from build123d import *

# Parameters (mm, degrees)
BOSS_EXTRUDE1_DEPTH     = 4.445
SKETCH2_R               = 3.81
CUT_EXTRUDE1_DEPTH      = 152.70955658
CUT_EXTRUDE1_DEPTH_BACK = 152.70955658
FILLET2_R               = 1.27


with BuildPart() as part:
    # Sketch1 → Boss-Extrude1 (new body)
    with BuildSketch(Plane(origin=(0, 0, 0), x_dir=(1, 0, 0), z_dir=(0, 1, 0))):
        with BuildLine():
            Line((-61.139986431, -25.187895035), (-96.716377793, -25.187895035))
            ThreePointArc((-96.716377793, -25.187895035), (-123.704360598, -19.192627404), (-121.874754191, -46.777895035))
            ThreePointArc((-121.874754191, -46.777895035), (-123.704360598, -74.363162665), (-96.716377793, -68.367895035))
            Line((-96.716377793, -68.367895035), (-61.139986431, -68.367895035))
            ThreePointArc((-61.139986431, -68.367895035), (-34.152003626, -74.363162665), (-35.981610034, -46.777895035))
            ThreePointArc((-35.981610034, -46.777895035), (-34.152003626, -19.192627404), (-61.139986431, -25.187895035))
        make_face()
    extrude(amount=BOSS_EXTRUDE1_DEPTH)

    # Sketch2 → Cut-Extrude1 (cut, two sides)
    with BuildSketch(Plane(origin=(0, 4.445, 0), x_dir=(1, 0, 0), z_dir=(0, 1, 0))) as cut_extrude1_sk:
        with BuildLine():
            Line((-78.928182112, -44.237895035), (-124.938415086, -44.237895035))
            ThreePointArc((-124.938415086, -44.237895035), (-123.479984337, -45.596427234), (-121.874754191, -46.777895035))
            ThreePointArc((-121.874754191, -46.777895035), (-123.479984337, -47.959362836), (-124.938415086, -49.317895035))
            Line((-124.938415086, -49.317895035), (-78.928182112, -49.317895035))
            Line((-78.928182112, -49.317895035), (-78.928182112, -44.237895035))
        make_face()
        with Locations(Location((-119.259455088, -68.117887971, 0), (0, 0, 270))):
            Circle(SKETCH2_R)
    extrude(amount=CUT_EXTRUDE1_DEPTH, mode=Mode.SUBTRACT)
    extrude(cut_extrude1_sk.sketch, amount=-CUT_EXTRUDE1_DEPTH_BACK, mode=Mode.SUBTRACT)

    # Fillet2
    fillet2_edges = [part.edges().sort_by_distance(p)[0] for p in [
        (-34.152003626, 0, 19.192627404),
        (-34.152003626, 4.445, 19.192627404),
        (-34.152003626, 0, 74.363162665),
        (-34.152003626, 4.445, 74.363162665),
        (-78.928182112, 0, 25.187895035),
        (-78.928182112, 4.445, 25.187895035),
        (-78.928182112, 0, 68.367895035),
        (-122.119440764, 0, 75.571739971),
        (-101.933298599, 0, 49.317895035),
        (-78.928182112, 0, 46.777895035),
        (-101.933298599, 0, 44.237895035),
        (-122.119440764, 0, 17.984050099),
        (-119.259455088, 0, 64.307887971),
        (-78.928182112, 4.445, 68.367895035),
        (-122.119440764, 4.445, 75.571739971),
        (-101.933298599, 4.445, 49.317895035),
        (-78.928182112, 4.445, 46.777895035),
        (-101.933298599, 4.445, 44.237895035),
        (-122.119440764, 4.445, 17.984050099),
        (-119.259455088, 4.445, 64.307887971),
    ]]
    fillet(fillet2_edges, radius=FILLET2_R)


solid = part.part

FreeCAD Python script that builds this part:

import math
import FreeCAD as App
import Part
import Sketcher
from FreeCAD import Vector
Q = App.Units.Quantity


def edges_at(feature, points):
    """Names of the edges that pass closest to the given points."""
    edges = feature.Shape.Edges
    near = lambda p: min(range(len(edges)), key=lambda i: edges[i].distToShape(Part.Vertex(*p))[0])
    return sorted({f"Edge{near(p) + 1}" for p in points})

doc = App.newDocument("Part")
params = doc.addObject("Spreadsheet::Sheet", "Params")
for row, (alias, value) in enumerate([
    ("sketch1_radius", "0.68 in"),
    ("pad1_length", "0.175 in"),
    ("sketch2_diameter", "0.3 in"),
    ("sketch2_radius", "0.68 in"),
    ("sketch2_height", "0.2 in"),
    ("fillet_radius", "0.05 in"),
], start=1):
    params.set(f"A{row}", alias)
    params.set(f"B{row}", "=" + value)
    params.setAlias(f"B{row}", alias)

body = doc.addObject("PartDesign::Body", "Body")

# Sketch on XZ plane
sketch1 = doc.addObject("Sketcher::SketchObject", "Sketch")
body.addObject(sketch1)
sketch1.AttachmentSupport = (doc.XZ_Plane, [""])
sketch1.MapMode = "FlatFace"
sketch1.addGeometry(Part.LineSegment(Vector(-61, 25, 0), Vector(-97, 25, 0)), False)
sketch1.addGeometry(Part.ArcOfCircle(Part.Circle(Vector(-112, 32, 0), Vector(0, 0, 1), 17), math.radians(123), math.radians(336)), False)
sketch1.addGeometry(Part.ArcOfCircle(Part.Circle(Vector(-112, 61, 0), Vector(0, 0, 1), 17), math.radians(24), math.radians(237)), False)
sketch1.addGeometry(Part.LineSegment(Vector(-97, 68, 0), Vector(-61, 68, 0)), False)
sketch1.addGeometry(Part.ArcOfCircle(Part.Circle(Vector(-45, 61, 0), Vector(0, 0, 1), 17), math.radians(-57), math.radians(156)), False)
sketch1.addGeometry(Part.ArcOfCircle(Part.Circle(Vector(-45, 32, 0), Vector(0, 0, 1), 17), math.radians(-156), math.radians(57)), False)
sketch1.addConstraint(Sketcher.Constraint("Coincident", 0, 2, 1, 2))
sketch1.addConstraint(Sketcher.Constraint("Coincident", 1, 1, 2, 2))
sketch1.addConstraint(Sketcher.Constraint("Coincident", 2, 1, 3, 1))
sketch1.addConstraint(Sketcher.Constraint("Coincident", 3, 2, 4, 2))
sketch1.addConstraint(Sketcher.Constraint("Coincident", 4, 1, 5, 2))
sketch1.addConstraint(Sketcher.Constraint("Coincident", 5, 1, 0, 1))
sketch1.addConstraint(Sketcher.Constraint("Horizontal", 0))
sketch1.addConstraint(Sketcher.Constraint("Horizontal", 3))
sketch1.addConstraint(Sketcher.Constraint("Equal", 1, 2))
sketch1.addConstraint(Sketcher.Constraint("Equal", 2, 4))
sketch1.addConstraint(Sketcher.Constraint("Equal", 4, 5))
sketch1.addConstraint(Sketcher.Constraint("Horizontal", 2, 3, 4, 3))
sketch1.addConstraint(Sketcher.Constraint("Horizontal", 1, 3, 5, 3))
sketch1.addConstraint(Sketcher.Constraint("Horizontal", 1, 1, 4, 1))
sketch1.addConstraint(Sketcher.Constraint("Vertical", 1, 3, 2, 3))
sketch1.addConstraint(Sketcher.Constraint("Vertical", 0, 2, 2, 1))
sketch1.addConstraint(Sketcher.Constraint("Radius", 1, Q("0.68 in")))
sketch1.addConstraint(Sketcher.Constraint("DistanceY", 0, 2, 2, 1, Q("1.7 in")))
sketch1.addConstraint(Sketcher.Constraint("DistanceY", 1, 3, 2, 3, Q("1.14 in")))
sketch1.addConstraint(Sketcher.Constraint("DistanceX", 2, 3, 4, 3, Q("2.64 in")))
sketch1.addConstraint(Sketcher.Constraint("DistanceX", 4, 1, -1, 1, Q("35.98161 mm")))
sketch1.addConstraint(Sketcher.Constraint("DistanceY", -1, 1, 1, 3, Q("32.299895 mm")))
sketch1.setExpression("Constraints[16]", "Params.sketch1_radius")
pad1 = doc.addObject("PartDesign::Pad", "Pad")
body.addObject(pad1)
pad1.Profile = sketch1
pad1.setExpression("Length", "Params.pad1_length")
pad1.Reversed = True

# Sketch on XZ plane
sketch2 = doc.addObject("Sketcher::SketchObject", "Sketch001")
body.addObject(sketch2)
sketch2.AttachmentSupport = (doc.XZ_Plane, [""])
sketch2.MapMode = "FlatFace"
sketch2.AttachmentOffset = App.Placement(Vector(0, 0, -0.175 * 25.4), App.Rotation())
sketch2.addGeometry(Part.LineSegment(Vector(-78.9, 44.2, 0), Vector(-124.9, 44.2, 0)), False)
sketch2.addGeometry(Part.ArcOfCircle(Part.Circle(Vector(-112.5, 32.3, 0), Vector(0, 0, 1), 17.3), math.radians(123.05), math.radians(136.28)), False)
sketch2.addGeometry(Part.ArcOfCircle(Part.Circle(Vector(-112.5, 61.3, 0), Vector(0, 0, 1), 17.3), math.radians(-136.28), math.radians(-123.05)), False)
sketch2.addGeometry(Part.LineSegment(Vector(-124.9, 49.3, 0), Vector(-78.9, 49.3, 0)), False)
sketch2.addGeometry(Part.LineSegment(Vector(-78.9, 49.3, 0), Vector(-78.9, 44.2, 0)), False)
sketch2.addGeometry(Part.Circle(Vector(-119.3, 68.1, 0), Vector(0, 0, 1), 3.8), False)
sketch2.addConstraint(Sketcher.Constraint("Coincident", 0, 2, 1, 2))
sketch2.addConstraint(Sketcher.Constraint("Coincident", 1, 1, 2, 2))
sketch2.addConstraint(Sketcher.Constraint("Coincident", 2, 1, 3, 1))
sketch2.addConstraint(Sketcher.Constraint("Coincident", 3, 2, 4, 1))
sketch2.addConstraint(Sketcher.Constraint("Coincident", 4, 2, 0, 1))
sketch2.addConstraint(Sketcher.Constraint("Horizontal", 0))
sketch2.addConstraint(Sketcher.Constraint("Horizontal", 3))
sketch2.addConstraint(Sketcher.Constraint("Vertical", 4))
sketch2.addConstraint(Sketcher.Constraint("Equal", 1, 2))
sketch2.addConstraint(Sketcher.Constraint("Vertical", 1, 3, 2, 3))
sketch2.addConstraint(Sketcher.Constraint("Vertical", 0, 2, 2, 1))
sketch2.addConstraint(Sketcher.Constraint("Diameter", 5, Q("0.3 in")))
sketch2.addConstraint(Sketcher.Constraint("Radius", 1, Q("0.68 in")))
sketch2.addConstraint(Sketcher.Constraint("DistanceY", 4, 2, 4, 1, Q("0.2 in")))
sketch2.addConstraint(Sketcher.Constraint("DistanceY", 1, 3, 2, 3, Q("1.14 in")))
sketch2.addConstraint(Sketcher.Constraint("DistanceX", 2, 3, 3, 2, Q("1.32 in")))
sketch2.addConstraint(Sketcher.Constraint("DistanceX", 1, 1, 5, 3, Q("2.615299 mm")))
sketch2.addConstraint(Sketcher.Constraint("DistanceX", 1, 3, -1, 1, Q("112.456182 mm")))
sketch2.addConstraint(Sketcher.Constraint("DistanceY", -1, 1, 1, 3, Q("32.299895 mm")))
sketch2.addConstraint(Sketcher.Constraint("DistanceY", -1, 1, 5, 3, Q("68.117888 mm")))
sketch2.setExpression("Constraints[11]", "Params.sketch2_diameter")
sketch2.setExpression("Constraints[12]", "Params.sketch2_radius")
sketch2.setExpression("Constraints[13]", "Params.sketch2_height")
pocket1 = doc.addObject("PartDesign::Pocket", "Pocket")
body.addObject(pocket1)
pocket1.Profile = sketch2
pocket1.Type = "ThroughAll"
pocket1.Midplane = True
doc.recompute()

fillet = doc.addObject("PartDesign::Fillet", "Fillet")
body.addObject(fillet)
fillet.Base = (pocket1, edges_at(pocket1, [
    (-34.152, 0, 19.193),
    (-34.152, 4.445, 19.193),
    (-34.152, 0, 74.363),
    (-34.152, 4.445, 74.363),
    (-78.928, 0, 25.188),
    (-78.928, 4.445, 25.188),
    (-78.928, 0, 68.368),
    (-122.119, 0, 75.572),
    (-101.933, 0, 49.318),
    (-78.928, 0, 46.778),
    (-101.933, 0, 44.238),
    (-122.119, 0, 17.984),
    (-119.259, 0, 64.308),
    (-78.928, 4.445, 68.368),
    (-122.119, 4.445, 75.572),
    (-101.933, 4.445, 49.318),
    (-78.928, 4.445, 46.778),
    (-101.933, 4.445, 44.238),
    (-122.119, 4.445, 17.984),
    (-119.259, 4.445, 64.308),
]))
fillet.setExpression("Radius", "Params.fillet_radius")

doc.recompute()
